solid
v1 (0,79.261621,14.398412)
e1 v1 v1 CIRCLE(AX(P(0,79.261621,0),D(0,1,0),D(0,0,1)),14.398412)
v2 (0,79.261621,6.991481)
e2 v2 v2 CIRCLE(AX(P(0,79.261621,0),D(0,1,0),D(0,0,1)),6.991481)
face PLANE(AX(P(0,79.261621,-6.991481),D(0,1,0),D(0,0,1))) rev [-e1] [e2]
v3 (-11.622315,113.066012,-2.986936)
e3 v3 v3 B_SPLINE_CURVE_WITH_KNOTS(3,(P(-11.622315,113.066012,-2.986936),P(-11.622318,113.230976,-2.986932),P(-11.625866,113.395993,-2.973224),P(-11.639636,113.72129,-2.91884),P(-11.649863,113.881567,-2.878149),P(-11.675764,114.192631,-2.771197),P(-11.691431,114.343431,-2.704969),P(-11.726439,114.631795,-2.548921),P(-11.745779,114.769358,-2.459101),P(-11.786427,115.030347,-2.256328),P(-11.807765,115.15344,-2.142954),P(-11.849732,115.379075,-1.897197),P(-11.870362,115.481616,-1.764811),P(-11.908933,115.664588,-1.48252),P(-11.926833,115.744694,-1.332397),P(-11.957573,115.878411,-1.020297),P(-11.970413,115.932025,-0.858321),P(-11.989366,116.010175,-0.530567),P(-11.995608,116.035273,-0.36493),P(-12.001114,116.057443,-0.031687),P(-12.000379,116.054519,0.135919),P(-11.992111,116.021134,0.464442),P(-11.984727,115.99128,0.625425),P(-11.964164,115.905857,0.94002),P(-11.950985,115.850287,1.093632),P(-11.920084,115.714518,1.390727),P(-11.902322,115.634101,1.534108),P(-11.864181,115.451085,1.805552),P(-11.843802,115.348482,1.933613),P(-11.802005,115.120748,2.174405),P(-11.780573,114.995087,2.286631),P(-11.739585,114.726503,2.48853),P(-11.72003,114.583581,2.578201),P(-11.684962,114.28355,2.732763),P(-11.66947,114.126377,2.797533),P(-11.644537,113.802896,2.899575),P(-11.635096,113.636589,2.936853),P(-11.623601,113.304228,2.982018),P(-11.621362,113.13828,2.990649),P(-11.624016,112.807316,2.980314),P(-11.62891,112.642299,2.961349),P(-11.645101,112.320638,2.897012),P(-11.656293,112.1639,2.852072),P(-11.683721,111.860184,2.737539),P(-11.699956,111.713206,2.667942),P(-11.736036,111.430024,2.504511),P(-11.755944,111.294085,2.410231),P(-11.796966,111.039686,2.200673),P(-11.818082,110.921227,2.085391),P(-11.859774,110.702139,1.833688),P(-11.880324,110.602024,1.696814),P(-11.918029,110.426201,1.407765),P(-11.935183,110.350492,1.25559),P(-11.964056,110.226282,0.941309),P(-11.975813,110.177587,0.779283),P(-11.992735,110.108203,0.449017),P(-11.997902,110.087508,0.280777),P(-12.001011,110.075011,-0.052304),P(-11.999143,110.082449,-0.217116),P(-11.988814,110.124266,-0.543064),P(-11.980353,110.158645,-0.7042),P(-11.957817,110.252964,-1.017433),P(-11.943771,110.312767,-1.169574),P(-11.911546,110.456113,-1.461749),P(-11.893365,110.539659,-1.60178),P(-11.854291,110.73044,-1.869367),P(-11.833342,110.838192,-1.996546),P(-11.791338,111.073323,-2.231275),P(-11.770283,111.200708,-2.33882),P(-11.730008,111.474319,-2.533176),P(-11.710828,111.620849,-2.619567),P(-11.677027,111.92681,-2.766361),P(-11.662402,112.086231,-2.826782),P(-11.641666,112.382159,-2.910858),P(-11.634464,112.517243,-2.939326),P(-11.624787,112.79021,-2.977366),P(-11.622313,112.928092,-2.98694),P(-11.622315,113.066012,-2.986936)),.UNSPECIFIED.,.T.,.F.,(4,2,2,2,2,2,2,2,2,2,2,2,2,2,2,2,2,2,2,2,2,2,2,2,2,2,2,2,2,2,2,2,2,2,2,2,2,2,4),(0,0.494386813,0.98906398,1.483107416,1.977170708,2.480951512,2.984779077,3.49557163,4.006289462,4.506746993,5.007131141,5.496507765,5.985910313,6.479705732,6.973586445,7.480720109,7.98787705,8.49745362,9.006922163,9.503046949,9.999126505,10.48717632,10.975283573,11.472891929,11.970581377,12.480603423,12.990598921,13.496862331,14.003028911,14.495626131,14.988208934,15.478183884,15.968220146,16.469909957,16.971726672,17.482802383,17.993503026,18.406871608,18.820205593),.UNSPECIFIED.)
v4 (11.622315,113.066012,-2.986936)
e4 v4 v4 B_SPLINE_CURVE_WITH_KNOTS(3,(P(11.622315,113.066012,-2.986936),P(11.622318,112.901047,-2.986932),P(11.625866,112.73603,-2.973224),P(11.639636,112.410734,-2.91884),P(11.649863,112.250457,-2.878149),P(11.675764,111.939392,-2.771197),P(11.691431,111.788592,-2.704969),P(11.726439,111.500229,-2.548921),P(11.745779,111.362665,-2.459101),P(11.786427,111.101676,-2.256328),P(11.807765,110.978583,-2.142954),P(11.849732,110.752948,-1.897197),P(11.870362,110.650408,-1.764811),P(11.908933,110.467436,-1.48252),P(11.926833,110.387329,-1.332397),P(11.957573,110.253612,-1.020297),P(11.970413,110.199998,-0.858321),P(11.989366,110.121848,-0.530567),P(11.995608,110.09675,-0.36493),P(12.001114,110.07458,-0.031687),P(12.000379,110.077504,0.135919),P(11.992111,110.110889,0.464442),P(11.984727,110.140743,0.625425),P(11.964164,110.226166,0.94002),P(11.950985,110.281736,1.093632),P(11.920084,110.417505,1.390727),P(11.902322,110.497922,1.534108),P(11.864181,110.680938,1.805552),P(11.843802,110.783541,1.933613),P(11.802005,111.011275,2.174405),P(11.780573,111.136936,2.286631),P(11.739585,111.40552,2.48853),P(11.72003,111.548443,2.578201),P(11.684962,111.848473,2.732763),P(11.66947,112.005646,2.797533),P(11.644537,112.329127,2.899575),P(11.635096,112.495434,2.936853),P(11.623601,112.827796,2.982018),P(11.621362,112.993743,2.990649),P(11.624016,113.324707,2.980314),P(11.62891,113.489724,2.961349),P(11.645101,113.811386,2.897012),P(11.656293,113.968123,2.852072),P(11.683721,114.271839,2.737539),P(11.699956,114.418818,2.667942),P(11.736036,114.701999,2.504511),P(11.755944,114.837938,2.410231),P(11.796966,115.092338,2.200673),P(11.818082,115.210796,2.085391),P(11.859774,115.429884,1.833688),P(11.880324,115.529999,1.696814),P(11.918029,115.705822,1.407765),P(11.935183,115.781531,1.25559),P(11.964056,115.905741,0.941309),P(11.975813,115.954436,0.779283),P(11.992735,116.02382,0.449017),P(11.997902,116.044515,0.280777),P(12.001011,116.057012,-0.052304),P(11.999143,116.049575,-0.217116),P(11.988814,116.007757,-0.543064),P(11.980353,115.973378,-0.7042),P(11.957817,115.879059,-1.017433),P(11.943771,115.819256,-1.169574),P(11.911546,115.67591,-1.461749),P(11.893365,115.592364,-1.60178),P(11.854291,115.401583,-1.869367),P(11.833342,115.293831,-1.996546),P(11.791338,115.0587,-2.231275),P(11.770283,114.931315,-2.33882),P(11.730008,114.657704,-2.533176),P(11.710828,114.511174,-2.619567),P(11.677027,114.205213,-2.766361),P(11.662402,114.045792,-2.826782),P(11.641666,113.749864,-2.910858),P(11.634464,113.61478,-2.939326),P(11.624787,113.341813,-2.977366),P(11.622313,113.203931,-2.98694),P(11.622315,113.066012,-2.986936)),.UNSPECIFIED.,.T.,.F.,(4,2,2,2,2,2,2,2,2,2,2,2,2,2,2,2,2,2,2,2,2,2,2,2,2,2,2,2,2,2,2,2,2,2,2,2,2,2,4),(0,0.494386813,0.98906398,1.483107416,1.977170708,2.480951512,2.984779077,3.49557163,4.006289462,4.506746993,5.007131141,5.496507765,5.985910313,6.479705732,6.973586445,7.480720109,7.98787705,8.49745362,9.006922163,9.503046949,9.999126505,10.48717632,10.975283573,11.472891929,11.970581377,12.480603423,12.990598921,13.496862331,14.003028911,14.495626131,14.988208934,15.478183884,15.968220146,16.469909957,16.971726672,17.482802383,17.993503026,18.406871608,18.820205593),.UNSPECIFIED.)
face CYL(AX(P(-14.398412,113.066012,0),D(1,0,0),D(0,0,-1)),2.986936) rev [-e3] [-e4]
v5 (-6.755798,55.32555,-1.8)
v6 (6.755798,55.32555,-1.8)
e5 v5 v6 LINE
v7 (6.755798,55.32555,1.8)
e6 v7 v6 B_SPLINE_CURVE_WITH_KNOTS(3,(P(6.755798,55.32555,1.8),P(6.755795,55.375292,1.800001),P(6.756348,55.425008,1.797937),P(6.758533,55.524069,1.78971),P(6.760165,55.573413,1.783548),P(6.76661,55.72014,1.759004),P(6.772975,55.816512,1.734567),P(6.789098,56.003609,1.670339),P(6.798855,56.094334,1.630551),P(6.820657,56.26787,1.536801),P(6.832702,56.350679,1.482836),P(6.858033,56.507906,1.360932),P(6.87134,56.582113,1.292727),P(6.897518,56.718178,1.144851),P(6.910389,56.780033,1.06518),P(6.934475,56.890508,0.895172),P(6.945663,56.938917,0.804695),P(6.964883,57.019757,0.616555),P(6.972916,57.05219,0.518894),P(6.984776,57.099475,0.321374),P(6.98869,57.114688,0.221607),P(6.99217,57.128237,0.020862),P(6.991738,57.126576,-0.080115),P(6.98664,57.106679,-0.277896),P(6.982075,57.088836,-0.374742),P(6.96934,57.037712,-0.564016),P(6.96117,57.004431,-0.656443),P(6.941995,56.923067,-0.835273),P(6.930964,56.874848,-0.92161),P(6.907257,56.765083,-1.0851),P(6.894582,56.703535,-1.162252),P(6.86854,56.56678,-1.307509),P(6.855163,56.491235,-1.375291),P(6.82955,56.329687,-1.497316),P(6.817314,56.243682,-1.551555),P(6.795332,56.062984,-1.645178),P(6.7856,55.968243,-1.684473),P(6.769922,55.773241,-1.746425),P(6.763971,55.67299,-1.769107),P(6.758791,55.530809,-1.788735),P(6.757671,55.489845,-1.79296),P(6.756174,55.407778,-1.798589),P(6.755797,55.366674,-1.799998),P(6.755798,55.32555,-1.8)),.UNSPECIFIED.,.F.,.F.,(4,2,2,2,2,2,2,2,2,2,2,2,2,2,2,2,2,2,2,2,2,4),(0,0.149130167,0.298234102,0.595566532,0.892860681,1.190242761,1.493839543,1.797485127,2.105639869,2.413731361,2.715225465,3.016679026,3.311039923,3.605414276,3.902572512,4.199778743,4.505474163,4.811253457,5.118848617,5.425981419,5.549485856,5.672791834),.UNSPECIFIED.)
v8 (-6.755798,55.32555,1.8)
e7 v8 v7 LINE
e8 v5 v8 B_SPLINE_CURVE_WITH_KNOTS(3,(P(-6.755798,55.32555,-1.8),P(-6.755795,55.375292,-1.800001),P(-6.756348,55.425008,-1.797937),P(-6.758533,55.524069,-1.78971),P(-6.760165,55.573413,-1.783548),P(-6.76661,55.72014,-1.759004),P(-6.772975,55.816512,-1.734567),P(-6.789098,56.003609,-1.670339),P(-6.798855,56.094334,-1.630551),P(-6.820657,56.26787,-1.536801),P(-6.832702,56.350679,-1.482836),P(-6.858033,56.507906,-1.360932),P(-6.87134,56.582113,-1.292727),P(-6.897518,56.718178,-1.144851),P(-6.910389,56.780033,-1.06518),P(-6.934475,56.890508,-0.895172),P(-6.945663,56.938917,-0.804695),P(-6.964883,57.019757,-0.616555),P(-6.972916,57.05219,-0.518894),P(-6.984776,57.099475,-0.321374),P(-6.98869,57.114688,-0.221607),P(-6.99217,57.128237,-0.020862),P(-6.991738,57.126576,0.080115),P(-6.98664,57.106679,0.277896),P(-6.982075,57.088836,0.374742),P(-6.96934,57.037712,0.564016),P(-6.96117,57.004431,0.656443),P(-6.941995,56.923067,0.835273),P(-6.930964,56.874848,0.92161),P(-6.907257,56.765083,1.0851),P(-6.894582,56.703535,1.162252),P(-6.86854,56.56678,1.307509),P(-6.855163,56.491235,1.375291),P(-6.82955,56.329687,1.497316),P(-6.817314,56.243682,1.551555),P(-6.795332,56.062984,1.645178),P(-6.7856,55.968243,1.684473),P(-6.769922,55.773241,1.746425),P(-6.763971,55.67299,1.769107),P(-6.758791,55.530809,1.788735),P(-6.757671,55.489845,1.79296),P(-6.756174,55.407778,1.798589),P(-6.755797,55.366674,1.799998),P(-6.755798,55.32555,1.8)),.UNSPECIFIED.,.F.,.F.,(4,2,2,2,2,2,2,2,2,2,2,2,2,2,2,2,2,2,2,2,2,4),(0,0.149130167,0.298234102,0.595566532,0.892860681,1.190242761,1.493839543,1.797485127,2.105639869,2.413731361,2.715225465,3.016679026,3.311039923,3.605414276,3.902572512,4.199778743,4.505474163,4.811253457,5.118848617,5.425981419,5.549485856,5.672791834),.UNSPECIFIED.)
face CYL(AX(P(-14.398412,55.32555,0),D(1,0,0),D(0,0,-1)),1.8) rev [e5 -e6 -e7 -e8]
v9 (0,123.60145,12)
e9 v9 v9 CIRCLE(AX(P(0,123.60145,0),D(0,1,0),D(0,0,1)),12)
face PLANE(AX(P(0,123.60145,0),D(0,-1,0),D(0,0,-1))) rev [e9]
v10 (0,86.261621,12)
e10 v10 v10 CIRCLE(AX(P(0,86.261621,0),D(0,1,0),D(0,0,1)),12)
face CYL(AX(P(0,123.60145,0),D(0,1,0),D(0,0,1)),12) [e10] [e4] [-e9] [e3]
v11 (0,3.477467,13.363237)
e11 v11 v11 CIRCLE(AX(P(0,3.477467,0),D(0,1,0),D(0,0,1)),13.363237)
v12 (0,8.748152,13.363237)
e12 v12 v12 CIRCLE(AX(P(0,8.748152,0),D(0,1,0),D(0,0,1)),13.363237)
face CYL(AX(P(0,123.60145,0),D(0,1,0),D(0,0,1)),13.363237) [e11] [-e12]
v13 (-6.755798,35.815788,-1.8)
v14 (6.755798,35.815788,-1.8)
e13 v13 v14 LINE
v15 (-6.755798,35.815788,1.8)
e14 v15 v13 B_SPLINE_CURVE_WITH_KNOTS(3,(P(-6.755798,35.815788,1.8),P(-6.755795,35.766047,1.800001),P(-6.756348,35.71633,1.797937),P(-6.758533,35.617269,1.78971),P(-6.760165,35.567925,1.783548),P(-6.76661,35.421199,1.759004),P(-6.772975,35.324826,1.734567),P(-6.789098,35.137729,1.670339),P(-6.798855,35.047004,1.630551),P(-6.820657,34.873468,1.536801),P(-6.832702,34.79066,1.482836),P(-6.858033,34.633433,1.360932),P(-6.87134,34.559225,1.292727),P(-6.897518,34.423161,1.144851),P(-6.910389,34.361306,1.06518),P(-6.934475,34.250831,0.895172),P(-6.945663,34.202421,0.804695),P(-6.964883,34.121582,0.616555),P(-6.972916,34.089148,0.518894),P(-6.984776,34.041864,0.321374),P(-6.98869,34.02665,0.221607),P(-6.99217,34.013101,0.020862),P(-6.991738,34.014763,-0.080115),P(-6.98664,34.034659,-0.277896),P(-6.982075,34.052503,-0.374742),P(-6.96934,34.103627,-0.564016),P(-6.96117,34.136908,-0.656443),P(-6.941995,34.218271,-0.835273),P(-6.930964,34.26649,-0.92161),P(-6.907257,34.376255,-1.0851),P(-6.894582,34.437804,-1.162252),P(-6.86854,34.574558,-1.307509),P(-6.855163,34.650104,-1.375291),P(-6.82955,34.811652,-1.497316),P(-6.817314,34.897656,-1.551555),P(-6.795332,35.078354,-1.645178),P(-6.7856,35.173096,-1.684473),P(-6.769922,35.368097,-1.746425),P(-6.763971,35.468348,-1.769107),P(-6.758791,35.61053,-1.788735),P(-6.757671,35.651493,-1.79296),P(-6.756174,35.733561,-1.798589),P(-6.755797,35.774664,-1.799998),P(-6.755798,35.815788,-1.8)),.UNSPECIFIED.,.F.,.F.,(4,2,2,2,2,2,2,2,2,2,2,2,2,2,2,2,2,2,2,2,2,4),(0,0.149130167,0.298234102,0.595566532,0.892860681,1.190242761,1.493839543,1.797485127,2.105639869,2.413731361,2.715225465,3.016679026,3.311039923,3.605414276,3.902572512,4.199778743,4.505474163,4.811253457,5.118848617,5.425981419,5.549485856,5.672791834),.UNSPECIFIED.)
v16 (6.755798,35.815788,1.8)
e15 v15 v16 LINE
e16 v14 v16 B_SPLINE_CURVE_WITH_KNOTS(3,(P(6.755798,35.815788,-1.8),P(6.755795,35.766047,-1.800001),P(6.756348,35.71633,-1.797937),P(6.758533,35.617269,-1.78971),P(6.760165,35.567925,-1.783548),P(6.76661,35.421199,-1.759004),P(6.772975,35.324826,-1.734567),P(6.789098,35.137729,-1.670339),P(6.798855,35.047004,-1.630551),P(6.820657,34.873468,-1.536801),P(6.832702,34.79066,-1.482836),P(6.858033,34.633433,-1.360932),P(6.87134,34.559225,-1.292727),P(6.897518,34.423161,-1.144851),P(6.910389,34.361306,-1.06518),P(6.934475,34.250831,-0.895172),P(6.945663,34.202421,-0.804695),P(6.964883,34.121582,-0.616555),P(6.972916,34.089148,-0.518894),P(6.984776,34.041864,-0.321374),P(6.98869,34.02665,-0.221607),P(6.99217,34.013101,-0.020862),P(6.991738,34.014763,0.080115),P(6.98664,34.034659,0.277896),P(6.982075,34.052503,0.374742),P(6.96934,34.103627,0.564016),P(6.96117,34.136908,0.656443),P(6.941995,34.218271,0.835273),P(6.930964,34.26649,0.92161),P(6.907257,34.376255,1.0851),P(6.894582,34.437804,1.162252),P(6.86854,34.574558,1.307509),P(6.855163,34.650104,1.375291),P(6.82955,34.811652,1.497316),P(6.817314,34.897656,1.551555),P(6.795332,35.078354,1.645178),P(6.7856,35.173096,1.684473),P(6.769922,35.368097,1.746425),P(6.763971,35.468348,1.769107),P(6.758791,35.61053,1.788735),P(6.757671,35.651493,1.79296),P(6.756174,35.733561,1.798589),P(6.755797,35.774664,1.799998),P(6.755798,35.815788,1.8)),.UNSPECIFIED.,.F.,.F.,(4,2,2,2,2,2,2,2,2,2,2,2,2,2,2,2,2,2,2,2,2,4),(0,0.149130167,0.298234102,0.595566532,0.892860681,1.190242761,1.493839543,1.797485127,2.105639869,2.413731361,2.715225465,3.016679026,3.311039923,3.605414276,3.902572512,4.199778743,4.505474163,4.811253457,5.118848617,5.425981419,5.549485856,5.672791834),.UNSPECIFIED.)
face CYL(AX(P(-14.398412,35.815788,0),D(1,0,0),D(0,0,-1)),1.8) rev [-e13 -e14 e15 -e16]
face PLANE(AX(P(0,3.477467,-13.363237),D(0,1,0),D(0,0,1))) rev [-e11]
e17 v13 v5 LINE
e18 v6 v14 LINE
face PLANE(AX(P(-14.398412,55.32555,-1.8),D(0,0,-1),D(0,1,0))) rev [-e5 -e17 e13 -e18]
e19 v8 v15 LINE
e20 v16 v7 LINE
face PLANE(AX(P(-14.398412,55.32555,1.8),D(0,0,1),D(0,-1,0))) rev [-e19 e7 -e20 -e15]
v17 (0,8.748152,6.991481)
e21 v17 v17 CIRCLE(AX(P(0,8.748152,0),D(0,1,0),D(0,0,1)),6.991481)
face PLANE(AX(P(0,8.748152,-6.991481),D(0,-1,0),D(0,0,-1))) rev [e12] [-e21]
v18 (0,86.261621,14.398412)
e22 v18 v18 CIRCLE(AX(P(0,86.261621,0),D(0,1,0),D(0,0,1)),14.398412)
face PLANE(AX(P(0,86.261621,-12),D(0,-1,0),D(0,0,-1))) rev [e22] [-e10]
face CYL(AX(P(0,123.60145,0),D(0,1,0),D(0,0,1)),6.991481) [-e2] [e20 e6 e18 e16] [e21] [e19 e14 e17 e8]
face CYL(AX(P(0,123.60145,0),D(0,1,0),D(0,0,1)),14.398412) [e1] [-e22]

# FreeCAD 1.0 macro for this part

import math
import FreeCAD as App
import Part
import Sketcher
Q = App.Units.Quantity


def add_polygon(sketch, points):
    """Adds a closed chain of lines whose ends are joined by coincident constraints."""
    first, n = sketch.GeometryCount, len(points)
    for a, b in zip(points, points[1:] + points[:1]):
        sketch.addGeometry(Part.LineSegment(App.Vector(*a, 0), App.Vector(*b, 0)), False)
    for i in range(n):
        sketch.addConstraint(Sketcher.Constraint("Coincident", first + i, 2, first + (i + 1) % n, 1))

doc = App.newDocument("Part")
body = doc.addObject("PartDesign::Body", "Body")

# Sketch on YZ plane
sketch1 = body.newObject("Sketcher::SketchObject", "Sketch")
sketch1.AttachmentSupport = (doc.getObject("YZ_Plane"), [""])
sketch1.MapMode = "FlatFace"
add_polygon(sketch1, [(123.6, -12), (123.6, 0), (3.5, 0), (3.5, -13.4), (8.7, -13.4), (8.7, -7), (79.3, -7), (79.3, -14.4), (86.3, -14.4), (86.3, -12)])  # lines 0-9
sketch1.addConstraint([
    Sketcher.Constraint("Vertical", 0),
    Sketcher.Constraint("Horizontal", 1),
    Sketcher.Constraint("Vertical", 2),
    Sketcher.Constraint("Horizontal", 3),
    Sketcher.Constraint("Vertical", 4),
    Sketcher.Constraint("Horizontal", 5),
    Sketcher.Constraint("Vertical", 6),
    Sketcher.Constraint("Horizontal", 7),
    Sketcher.Constraint("Vertical", 8),
    Sketcher.Constraint("Horizontal", 9),
    Sketcher.Constraint("PointOnObject", 0, 2, -1),
    Sketcher.Constraint("DistanceX", 7, 1, 7, 2, Q("7 mm")),
    Sketcher.Constraint("DistanceY", 0, 1, 0, 2, Q("12 mm")),
    Sketcher.Constraint("DistanceX", 5, 1, 5, 2, Q("70.513469 mm")),
    Sketcher.Constraint("DistanceX", 9, 1, 9, 2, Q("37.339828 mm")),
    Sketcher.Constraint("DistanceY", 6, 2, 6, 1, Q("7.406931 mm")),
    Sketcher.Constraint("DistanceX", 1, 2, 1, 1, Q("120.123982 mm")),
    Sketcher.Constraint("DistanceY", 2, 2, 2, 1, Q("13.363237 mm")),
    Sketcher.Constraint("DistanceY", 4, 1, 4, 2, Q("6.371756 mm")),
    Sketcher.Constraint("DistanceX", -1, 1, 0, 2, Q("123.60145 mm")),
])
revolution = body.newObject("PartDesign::Revolution", "Revolution")
revolution.Profile = sketch1
revolution.ReferenceAxis = (sketch1, ["H_Axis"])
revolution.Angle = 360

# Sketch on YZ plane
sketch2 = body.newObject("Sketcher::SketchObject", "Sketch001")
sketch2.AttachmentSupport = (doc.getObject("YZ_Plane"), [""])
sketch2.MapMode = "FlatFace"
sketch2.addGeometry(Part.Circle(App.Vector(113.1, 0, 0), App.Vector(0, 0, 1), 3), False)
sketch2.addConstraint([
    Sketcher.Constraint("PointOnObject", 0, 3, -1),
    Sketcher.Constraint("Diameter", 0, Q("5.973873 mm")),
    Sketcher.Constraint("DistanceX", -1, 1, 0, 3, Q("113.066012 mm")),
])
pocket1 = body.newObject("PartDesign::Pocket", "Pocket")
pocket1.Profile = sketch2
pocket1.Type = "ThroughAll"
pocket1.Midplane = True

# Sketch on YZ plane
sketch3 = body.newObject("Sketcher::SketchObject", "Sketch002")
sketch3.AttachmentSupport = (doc.getObject("YZ_Plane"), [""])
sketch3.MapMode = "FlatFace"
sketch3.addGeometry([
    Part.LineSegment(App.Vector(35.8, -1.8, 0), App.Vector(55.3, -1.8, 0)),
    Part.ArcOfCircle(Part.Circle(App.Vector(55.3, 0, 0), App.Vector(0, 0, 1), 1.8), math.radians(-90), math.radians(90)),
    Part.LineSegment(App.Vector(55.3, 1.8, 0), App.Vector(35.8, 1.8, 0)),
    Part.ArcOfCircle(Part.Circle(App.Vector(35.8, 0, 0), App.Vector(0, 0, 1), 1.8), math.radians(90), math.radians(270)),
], False)
sketch3.addConstraint([
    Sketcher.Constraint("Tangent", 0, 2, 1, 1),
    Sketcher.Constraint("Tangent", 1, 2, 2, 1),
    Sketcher.Constraint("Tangent", 2, 2, 3, 1),
    Sketcher.Constraint("Tangent", 3, 2, 0, 1),
    Sketcher.Constraint("Horizontal", 0),
    Sketcher.Constraint("Horizontal", 2),
    Sketcher.Constraint("PointOnObject", 1, 3, -1),
    Sketcher.Constraint("Radius", 1, Q("1.8 mm")),
    Sketcher.Constraint("DistanceX", 0, 1, 0, 2, Q("19.509762 mm")),
    Sketcher.Constraint("DistanceX", -1, 1, 1, 3, Q("55.32555 mm")),
])
pocket2 = body.newObject("PartDesign::Pocket", "Pocket001")
pocket2.Profile = sketch3
pocket2.Type = "ThroughAll"
pocket2.Midplane = True

doc.recompute()
